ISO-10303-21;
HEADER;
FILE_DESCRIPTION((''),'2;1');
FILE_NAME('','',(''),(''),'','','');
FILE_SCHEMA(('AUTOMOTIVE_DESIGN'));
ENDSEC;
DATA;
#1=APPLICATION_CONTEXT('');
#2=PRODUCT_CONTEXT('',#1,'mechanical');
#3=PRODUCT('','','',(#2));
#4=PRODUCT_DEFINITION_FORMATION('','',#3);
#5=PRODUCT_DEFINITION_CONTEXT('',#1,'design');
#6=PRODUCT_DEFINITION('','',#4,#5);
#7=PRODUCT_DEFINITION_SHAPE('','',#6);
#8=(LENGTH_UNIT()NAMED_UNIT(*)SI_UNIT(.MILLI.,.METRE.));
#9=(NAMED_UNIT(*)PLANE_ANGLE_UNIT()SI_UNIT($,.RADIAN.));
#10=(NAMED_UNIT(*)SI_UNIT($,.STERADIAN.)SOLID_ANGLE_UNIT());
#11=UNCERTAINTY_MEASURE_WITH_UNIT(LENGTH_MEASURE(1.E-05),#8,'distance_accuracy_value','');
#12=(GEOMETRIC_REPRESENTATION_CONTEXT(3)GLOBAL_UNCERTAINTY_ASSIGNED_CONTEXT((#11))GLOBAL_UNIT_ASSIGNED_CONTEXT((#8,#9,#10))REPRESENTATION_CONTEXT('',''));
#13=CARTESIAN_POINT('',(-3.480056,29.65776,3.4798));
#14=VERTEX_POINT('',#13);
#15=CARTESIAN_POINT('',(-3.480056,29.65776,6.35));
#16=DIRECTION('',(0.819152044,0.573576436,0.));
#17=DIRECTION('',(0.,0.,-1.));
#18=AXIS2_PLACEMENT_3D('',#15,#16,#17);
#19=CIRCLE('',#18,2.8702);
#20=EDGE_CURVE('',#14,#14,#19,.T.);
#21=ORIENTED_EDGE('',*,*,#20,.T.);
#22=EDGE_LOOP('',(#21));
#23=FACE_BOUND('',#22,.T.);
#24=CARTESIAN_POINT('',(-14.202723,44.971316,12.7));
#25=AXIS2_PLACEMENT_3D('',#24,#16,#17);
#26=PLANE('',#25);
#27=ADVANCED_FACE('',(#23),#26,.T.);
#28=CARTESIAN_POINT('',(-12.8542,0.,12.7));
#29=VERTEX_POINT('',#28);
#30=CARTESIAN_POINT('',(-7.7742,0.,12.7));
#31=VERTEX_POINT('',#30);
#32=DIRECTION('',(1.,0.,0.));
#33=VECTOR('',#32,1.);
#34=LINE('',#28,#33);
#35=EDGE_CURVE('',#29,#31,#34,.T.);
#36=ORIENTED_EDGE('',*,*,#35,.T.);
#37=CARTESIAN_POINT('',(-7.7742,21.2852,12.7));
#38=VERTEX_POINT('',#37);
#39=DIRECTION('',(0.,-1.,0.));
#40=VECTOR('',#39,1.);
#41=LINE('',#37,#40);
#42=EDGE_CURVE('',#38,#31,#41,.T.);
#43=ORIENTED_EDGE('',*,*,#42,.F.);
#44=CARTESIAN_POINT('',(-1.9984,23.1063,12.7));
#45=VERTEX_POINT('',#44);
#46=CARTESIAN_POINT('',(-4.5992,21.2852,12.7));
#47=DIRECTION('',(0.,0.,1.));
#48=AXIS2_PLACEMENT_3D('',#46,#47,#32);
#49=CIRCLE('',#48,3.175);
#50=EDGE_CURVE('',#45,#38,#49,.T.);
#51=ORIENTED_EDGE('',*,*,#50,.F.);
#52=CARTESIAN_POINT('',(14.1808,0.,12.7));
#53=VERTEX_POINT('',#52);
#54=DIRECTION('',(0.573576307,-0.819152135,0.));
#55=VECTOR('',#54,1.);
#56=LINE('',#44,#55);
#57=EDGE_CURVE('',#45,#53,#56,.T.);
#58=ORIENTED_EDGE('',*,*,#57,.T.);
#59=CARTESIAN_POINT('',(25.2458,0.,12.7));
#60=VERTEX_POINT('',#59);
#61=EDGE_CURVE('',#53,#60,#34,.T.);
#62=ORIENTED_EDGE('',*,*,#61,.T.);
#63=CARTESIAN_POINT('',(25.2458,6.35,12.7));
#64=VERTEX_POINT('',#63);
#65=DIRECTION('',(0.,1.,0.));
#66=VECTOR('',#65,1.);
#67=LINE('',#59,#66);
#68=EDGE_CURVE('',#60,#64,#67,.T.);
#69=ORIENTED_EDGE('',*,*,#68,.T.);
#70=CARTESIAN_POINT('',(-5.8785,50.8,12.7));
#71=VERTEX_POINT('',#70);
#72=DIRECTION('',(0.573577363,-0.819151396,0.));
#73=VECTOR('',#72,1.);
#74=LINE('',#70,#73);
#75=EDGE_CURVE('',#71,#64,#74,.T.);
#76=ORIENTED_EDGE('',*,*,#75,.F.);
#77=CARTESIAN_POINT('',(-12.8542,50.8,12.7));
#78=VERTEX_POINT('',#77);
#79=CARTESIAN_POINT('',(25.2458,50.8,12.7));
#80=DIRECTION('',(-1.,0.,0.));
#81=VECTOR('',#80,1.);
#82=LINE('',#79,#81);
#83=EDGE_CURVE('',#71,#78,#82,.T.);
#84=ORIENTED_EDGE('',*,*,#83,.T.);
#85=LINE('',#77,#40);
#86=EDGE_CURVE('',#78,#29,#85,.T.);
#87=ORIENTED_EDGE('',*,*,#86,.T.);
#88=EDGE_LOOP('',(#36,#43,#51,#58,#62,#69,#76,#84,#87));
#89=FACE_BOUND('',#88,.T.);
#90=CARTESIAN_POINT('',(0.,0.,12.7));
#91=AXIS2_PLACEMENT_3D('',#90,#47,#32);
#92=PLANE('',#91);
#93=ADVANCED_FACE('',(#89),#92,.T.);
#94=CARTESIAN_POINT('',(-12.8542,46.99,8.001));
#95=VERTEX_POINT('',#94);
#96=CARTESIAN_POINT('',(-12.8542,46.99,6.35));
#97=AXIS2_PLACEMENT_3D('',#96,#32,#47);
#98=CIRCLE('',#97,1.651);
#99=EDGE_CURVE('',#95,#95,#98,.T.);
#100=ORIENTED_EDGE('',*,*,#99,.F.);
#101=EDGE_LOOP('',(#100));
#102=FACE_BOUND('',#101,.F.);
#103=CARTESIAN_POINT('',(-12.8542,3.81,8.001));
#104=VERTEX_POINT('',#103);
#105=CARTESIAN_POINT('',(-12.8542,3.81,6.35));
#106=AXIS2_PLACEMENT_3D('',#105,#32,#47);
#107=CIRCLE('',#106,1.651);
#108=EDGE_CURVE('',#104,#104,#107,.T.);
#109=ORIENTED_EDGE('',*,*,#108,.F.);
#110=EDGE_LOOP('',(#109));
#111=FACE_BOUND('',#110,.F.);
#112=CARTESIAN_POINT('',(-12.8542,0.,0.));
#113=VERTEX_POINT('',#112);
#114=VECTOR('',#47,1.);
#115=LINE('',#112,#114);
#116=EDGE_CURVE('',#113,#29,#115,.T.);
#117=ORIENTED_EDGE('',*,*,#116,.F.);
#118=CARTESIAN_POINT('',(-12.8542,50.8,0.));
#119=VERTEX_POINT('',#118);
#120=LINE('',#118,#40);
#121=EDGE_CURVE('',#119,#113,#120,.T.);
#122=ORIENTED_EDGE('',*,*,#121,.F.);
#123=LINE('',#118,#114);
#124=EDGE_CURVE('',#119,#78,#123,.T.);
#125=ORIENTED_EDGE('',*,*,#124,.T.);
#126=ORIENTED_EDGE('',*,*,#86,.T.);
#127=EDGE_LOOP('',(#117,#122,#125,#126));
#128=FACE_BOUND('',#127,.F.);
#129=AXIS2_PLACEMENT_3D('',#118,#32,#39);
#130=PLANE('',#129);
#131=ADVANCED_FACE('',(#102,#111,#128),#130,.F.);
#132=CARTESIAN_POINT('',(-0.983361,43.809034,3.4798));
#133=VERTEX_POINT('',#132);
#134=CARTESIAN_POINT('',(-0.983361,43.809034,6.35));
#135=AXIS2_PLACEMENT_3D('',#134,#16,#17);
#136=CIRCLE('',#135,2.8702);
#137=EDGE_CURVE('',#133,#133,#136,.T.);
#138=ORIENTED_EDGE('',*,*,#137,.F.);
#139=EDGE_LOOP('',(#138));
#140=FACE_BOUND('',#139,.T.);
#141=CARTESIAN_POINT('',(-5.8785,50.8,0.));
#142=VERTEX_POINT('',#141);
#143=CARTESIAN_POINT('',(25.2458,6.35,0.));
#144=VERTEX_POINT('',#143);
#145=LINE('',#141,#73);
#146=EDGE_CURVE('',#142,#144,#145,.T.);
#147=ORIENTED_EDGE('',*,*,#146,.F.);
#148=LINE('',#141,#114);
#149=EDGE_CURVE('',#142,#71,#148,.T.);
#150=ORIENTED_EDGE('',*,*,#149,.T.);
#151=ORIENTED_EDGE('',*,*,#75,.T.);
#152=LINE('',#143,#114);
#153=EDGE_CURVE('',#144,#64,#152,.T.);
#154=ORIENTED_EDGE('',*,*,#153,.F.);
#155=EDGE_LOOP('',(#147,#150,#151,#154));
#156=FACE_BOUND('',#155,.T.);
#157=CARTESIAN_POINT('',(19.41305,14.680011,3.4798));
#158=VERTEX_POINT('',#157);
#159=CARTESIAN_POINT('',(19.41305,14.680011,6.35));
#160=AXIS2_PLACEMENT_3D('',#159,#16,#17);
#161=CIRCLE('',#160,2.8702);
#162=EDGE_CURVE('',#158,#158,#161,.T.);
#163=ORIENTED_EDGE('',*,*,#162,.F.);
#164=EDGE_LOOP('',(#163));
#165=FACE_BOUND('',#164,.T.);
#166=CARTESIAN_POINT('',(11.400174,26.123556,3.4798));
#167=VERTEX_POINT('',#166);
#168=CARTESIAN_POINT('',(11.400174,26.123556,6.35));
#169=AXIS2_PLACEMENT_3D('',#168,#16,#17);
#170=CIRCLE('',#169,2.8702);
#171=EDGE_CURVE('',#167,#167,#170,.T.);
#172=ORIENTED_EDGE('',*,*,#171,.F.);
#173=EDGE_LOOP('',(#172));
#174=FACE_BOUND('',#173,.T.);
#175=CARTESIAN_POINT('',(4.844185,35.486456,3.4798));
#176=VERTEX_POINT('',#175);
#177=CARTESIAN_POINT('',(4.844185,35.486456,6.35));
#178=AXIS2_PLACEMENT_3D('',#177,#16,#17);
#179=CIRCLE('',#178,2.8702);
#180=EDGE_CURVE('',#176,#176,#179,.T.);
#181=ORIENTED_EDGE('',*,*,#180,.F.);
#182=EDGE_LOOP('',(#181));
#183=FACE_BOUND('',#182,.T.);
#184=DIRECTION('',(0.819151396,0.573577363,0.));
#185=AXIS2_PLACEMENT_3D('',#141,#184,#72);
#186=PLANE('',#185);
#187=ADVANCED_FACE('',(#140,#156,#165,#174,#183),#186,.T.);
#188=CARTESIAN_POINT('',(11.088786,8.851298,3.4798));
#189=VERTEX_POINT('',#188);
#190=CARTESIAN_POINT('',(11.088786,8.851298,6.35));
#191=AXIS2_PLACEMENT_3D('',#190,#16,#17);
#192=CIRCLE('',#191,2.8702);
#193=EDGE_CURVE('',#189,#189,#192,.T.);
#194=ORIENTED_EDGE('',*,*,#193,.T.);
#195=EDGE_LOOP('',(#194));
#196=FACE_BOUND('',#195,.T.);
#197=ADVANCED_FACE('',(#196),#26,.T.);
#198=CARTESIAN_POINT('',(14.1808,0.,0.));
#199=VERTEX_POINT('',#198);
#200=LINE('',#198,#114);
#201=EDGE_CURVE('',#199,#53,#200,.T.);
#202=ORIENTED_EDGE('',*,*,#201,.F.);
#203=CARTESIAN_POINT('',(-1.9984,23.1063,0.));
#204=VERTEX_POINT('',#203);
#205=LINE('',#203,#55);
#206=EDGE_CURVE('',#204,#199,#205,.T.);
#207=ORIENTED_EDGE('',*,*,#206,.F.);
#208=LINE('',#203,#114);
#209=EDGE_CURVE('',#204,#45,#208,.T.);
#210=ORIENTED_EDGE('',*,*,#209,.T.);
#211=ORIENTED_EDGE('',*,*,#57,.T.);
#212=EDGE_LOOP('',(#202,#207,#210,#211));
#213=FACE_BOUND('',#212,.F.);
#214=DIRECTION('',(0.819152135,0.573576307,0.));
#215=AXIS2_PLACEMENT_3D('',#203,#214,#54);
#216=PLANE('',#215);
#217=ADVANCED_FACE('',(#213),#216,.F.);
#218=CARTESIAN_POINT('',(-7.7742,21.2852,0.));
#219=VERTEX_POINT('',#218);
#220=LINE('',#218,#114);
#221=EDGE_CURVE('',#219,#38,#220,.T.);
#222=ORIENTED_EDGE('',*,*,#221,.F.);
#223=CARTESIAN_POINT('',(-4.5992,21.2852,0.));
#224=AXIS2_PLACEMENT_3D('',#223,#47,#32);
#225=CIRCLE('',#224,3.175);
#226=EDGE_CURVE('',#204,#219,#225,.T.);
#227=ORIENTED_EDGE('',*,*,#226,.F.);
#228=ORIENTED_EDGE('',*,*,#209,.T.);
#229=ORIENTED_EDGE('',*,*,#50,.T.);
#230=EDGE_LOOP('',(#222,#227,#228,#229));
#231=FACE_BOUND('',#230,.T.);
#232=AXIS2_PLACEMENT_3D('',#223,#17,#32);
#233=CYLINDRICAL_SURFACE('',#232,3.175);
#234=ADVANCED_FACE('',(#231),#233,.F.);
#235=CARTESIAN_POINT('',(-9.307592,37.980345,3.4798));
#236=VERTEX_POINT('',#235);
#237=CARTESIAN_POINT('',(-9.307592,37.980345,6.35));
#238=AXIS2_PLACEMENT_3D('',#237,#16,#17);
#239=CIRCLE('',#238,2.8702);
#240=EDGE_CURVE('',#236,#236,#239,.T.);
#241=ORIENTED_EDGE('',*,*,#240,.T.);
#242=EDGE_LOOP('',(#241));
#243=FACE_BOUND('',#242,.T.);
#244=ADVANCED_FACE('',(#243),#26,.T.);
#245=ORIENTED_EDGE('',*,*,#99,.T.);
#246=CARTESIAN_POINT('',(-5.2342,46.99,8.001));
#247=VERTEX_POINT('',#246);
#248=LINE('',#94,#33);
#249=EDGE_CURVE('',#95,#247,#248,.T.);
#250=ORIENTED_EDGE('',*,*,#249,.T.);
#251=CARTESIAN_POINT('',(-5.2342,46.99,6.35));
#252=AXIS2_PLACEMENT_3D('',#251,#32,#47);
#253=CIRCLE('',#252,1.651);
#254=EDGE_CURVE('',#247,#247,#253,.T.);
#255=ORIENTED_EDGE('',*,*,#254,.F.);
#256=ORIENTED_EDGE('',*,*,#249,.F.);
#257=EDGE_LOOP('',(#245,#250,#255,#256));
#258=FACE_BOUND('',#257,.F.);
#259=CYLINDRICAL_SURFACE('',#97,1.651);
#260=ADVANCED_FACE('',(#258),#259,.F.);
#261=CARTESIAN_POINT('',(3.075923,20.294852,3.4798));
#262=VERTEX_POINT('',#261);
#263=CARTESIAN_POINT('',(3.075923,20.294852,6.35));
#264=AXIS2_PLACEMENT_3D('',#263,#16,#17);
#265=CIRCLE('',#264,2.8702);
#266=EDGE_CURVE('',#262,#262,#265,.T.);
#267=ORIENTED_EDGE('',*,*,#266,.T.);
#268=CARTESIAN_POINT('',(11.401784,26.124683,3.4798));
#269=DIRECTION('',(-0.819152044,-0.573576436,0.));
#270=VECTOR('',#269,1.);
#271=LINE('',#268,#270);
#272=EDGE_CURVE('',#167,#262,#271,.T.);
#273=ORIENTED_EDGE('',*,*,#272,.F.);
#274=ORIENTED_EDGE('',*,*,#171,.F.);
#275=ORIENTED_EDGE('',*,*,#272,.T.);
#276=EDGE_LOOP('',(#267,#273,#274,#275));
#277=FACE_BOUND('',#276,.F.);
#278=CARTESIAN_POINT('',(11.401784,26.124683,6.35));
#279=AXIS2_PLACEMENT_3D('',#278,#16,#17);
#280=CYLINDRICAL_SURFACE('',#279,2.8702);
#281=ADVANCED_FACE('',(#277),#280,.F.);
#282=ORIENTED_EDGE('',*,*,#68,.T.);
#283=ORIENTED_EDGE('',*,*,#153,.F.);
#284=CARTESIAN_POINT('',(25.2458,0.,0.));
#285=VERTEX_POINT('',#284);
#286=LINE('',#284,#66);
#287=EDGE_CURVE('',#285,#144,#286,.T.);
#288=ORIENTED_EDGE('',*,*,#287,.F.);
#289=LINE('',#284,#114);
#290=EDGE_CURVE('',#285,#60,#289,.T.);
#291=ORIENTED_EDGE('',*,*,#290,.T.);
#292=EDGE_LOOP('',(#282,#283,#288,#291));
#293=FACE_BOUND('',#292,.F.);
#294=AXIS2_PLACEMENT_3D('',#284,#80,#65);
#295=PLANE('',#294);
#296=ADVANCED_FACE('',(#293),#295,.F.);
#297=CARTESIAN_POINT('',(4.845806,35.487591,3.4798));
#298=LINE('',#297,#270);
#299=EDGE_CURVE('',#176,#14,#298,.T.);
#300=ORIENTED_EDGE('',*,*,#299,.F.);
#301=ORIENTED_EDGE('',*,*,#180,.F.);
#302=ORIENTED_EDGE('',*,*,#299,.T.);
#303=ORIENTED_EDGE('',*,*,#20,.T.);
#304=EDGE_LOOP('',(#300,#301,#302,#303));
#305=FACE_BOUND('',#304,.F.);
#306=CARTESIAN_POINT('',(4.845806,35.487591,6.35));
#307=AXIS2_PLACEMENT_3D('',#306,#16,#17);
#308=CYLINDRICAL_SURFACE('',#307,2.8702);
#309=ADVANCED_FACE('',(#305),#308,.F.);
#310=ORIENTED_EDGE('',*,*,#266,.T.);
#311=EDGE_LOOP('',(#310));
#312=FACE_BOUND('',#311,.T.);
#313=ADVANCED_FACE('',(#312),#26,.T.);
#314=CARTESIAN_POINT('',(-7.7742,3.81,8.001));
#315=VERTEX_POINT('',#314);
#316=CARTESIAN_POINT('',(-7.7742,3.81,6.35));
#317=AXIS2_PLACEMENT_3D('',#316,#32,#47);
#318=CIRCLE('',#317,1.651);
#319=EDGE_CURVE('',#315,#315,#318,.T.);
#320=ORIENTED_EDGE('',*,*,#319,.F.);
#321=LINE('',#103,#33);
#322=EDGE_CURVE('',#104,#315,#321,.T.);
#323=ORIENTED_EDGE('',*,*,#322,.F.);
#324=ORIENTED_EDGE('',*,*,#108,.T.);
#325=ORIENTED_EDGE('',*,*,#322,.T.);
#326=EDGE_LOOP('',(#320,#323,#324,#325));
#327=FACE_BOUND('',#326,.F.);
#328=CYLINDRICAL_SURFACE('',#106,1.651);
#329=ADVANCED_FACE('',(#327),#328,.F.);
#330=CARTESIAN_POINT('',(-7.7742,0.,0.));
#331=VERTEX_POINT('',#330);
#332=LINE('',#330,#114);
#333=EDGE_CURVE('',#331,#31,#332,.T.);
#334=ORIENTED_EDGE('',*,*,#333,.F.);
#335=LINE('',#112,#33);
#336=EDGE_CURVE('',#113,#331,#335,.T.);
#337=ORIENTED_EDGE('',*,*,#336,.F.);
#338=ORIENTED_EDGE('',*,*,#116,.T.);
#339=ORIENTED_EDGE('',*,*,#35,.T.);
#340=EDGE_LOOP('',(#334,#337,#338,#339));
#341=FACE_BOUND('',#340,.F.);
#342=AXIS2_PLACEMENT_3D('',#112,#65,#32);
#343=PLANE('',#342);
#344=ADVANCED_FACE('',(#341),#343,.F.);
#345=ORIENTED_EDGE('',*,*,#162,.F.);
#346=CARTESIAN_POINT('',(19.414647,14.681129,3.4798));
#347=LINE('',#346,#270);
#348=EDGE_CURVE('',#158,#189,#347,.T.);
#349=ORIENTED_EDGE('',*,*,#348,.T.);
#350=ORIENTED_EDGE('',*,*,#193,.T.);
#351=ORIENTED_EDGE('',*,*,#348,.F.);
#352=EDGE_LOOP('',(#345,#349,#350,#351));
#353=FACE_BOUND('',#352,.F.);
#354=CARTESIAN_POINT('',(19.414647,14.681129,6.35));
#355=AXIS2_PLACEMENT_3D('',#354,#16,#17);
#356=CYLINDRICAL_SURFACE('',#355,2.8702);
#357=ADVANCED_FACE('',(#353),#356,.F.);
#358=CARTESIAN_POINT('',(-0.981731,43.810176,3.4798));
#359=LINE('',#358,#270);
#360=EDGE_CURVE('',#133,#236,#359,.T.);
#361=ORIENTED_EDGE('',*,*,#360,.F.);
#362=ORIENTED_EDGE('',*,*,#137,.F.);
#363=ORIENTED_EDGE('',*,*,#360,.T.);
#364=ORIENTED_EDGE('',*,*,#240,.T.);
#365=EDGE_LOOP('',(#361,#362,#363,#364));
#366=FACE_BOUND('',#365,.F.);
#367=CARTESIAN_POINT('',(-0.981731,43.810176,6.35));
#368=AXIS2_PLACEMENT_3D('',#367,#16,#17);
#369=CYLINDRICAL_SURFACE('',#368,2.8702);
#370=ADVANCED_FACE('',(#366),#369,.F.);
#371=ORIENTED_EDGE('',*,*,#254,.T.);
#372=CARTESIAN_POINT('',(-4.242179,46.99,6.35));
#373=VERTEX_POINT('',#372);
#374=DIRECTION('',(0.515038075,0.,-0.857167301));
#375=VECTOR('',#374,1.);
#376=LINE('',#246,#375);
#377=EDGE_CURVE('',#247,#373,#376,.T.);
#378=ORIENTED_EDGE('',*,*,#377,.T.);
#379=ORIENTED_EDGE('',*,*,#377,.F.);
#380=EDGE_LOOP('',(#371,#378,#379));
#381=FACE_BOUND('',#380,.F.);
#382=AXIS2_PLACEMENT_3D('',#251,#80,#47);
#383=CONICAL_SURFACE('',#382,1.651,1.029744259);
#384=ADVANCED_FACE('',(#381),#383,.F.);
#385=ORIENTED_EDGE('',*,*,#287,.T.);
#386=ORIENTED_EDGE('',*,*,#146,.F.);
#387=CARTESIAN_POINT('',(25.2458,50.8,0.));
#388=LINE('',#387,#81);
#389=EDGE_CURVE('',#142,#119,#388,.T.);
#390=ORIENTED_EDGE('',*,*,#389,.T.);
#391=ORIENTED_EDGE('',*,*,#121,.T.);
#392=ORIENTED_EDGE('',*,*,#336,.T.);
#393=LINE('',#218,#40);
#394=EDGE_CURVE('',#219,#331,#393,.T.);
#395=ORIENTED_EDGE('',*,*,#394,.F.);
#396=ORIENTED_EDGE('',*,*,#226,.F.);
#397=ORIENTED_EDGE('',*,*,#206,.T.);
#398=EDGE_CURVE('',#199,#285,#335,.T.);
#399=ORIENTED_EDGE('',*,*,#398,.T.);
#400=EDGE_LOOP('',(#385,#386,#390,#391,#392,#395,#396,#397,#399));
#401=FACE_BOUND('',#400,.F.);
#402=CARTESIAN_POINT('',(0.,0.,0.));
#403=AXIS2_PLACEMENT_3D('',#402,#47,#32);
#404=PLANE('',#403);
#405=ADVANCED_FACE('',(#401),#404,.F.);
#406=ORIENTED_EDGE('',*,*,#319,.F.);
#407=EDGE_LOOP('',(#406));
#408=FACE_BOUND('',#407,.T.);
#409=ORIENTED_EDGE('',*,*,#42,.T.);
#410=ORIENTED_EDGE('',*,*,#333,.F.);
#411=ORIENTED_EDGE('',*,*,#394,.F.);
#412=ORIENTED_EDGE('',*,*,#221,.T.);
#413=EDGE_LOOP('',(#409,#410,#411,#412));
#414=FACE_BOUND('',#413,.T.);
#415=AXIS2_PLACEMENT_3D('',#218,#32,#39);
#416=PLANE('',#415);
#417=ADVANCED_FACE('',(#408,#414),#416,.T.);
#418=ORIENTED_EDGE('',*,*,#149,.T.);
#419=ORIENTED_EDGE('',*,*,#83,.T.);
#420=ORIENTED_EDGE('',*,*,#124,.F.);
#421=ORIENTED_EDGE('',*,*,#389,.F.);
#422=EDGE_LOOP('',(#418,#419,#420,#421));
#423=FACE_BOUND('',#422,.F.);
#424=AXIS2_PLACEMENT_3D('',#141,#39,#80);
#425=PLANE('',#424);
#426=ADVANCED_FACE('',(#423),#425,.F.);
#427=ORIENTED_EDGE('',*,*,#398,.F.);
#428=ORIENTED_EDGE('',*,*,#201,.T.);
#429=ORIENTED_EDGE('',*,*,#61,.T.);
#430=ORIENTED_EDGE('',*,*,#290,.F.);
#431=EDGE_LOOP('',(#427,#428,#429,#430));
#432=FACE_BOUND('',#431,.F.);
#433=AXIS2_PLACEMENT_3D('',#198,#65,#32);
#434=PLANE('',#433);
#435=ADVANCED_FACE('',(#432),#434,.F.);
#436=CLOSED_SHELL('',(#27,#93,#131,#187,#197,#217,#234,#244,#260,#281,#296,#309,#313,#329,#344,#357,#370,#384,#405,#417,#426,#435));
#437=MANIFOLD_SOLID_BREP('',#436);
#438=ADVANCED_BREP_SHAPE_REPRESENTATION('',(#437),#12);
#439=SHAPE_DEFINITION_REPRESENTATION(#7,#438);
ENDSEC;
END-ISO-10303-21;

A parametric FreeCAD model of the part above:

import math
import FreeCAD as App
import Part
import Sketcher

V = App.Vector
Q = App.Units.Quantity

doc = App.newDocument("Part")
body = doc.addObject("PartDesign::Body", "Body")

sketch1 = body.newObject("Sketcher::SketchObject", "Sketch")
sketch1.AttachmentSupport = (doc.getObject("XY_Plane"), [""])
sketch1.MapMode = "FlatFace"
sketch1.addGeometry(Part.LineSegment(V(-12.9, 50.8, 0), V(-12.9, 0, 0)), False)
sketch1.addGeometry(Part.LineSegment(V(-12.9, 0, 0), V(-7.8, 0, 0)), False)
sketch1.addGeometry(Part.LineSegment(V(-7.8, 0, 0), V(-7.8, 21.3, 0)), False)
sketch1.addGeometry(Part.ArcOfCircle(Part.Circle(V(-4.6, 21.3, 0), V(0, 0, 1), 3.2), math.radians(35), math.radians(180)), False)
sketch1.addGeometry(Part.LineSegment(V(-2, 23.1, 0), V(14.2, 0, 0)), False)
sketch1.addGeometry(Part.LineSegment(V(14.2, 0, 0), V(25.2, 0, 0)), False)
sketch1.addGeometry(Part.LineSegment(V(25.2, 0, 0), V(25.2, 6.3, 0)), False)
sketch1.addGeometry(Part.LineSegment(V(25.2, 6.3, 0), V(-5.9, 50.8, 0)), False)
sketch1.addGeometry(Part.LineSegment(V(-5.9, 50.8, 0), V(-12.9, 50.8, 0)), False)
sketch1.addConstraint(Sketcher.Constraint("Coincident", 0, 2, 1, 1))
sketch1.addConstraint(Sketcher.Constraint("Coincident", 1, 2, 2, 1))
sketch1.addConstraint(Sketcher.Constraint("Tangent", 2, 2, 3, 2))
sketch1.addConstraint(Sketcher.Constraint("Tangent", 3, 1, 4, 1))
sketch1.addConstraint(Sketcher.Constraint("Coincident", 4, 2, 5, 1))
sketch1.addConstraint(Sketcher.Constraint("Coincident", 5, 2, 6, 1))
sketch1.addConstraint(Sketcher.Constraint("Coincident", 6, 2, 7, 1))
sketch1.addConstraint(Sketcher.Constraint("Coincident", 7, 2, 8, 1))
sketch1.addConstraint(Sketcher.Constraint("Coincident", 8, 2, 0, 1))
sketch1.addConstraint(Sketcher.Constraint("Vertical", 0))
sketch1.addConstraint(Sketcher.Constraint("Horizontal", 1))
sketch1.addConstraint(Sketcher.Constraint("Vertical", 2))
sketch1.addConstraint(Sketcher.Constraint("Horizontal", 5))
sketch1.addConstraint(Sketcher.Constraint("Vertical", 6))
sketch1.addConstraint(Sketcher.Constraint("Horizontal", 8))
sketch1.addConstraint(Sketcher.Constraint("PointOnObject", 0, 2, -1))
sketch1.addConstraint(Sketcher.Constraint("PointOnObject", 4, 2, -1))
sketch1.addConstraint(Sketcher.Constraint("Parallel", 4, 7))
sketch1.addConstraint(Sketcher.Constraint("DistanceY", 0, 2, 0, 1, Q("2 in")))
sketch1.addConstraint(Sketcher.Constraint("Radius", 3, Q("0.125 in")))
sketch1.addConstraint(Sketcher.Constraint("DistanceY", 6, 1, 6, 2, Q("0.25 in")))
sketch1.addConstraint(Sketcher.Constraint("DistanceX", 0, 2, 5, 2, Q("1.5 in")))
sketch1.addConstraint(Sketcher.Constraint("DistanceY", 2, 1, 2, 2, Q("0.838 in")))
sketch1.addConstraint(Sketcher.Constraint("DistanceX", 1, 1, 1, 2, Q("0.2 in")))
sketch1.addConstraint(Sketcher.Constraint("Angle", 4, Q("-55 deg")))
sketch1.addConstraint(Sketcher.Constraint("DistanceX", -1, 1, 4, 2, Q("0.5583 in")))
pad1 = body.newObject("PartDesign::Pad", "Pad")
pad1.Profile = sketch1
pad1.Length = Q("0.5 in")

sketch2 = body.newObject("Sketcher::SketchObject", "Sketch001")
sketch2.Placement = App.Placement(V(-5.8785, 50.8, 12.7), App.Rotation(V(0, 0, -1), V(-0.573576436, 0.819152044, 0), V(0.819152044, 0.573576436, 0), "ZXY"))
sketch2.addGeometry(Part.Circle(V(6.3, -8.5, 0), V(0, 0, 1), 2.9), False)
sketch2.addGeometry(Part.Circle(V(6.3, -18.7, 0), V(0, 0, 1), 2.9), False)
sketch2.addGeometry(Part.Circle(V(6.3, -30.1, 0), V(0, 0, 1), 2.9), False)
sketch2.addGeometry(Part.Circle(V(6.3, -44.1, 0), V(0, 0, 1), 2.9), False)
sketch2.addConstraint(Sketcher.Constraint("Equal", 0, 1))
sketch2.addConstraint(Sketcher.Constraint("Equal", 1, 2))
sketch2.addConstraint(Sketcher.Constraint("Equal", 2, 3))
sketch2.addConstraint(Sketcher.Constraint("Vertical", 0, 3, 1, 3))
sketch2.addConstraint(Sketcher.Constraint("Vertical", 1, 3, 2, 3))
sketch2.addConstraint(Sketcher.Constraint("Vertical", 2, 3, 3, 3))
sketch2.addConstraint(Sketcher.Constraint("Diameter", 0, Q("0.226 in")))
sketch2.addConstraint(Sketcher.Constraint("DistanceX", -1, 1, 0, 3, Q("0.25 in")))
sketch2.addConstraint(Sketcher.Constraint("DistanceY", 0, 3, -1, 1, Q("0.336 in")))
sketch2.addConstraint(Sketcher.Constraint("DistanceY", 1, 3, -1, 1, Q("0.736 in")))
sketch2.addConstraint(Sketcher.Constraint("DistanceY", 2, 3, -1, 1, Q("1.186 in")))
sketch2.addConstraint(Sketcher.Constraint("DistanceY", 3, 3, -1, 1, Q("1.736 in")))
pocket1 = body.newObject("PartDesign::Pocket", "Pocket")
pocket1.Profile = sketch2
pocket1.Length = Q("0.4 in")

sketch3 = body.newObject("Sketcher::SketchObject", "Sketch002")
sketch3.AttachmentSupport = (doc.getObject("YZ_Plane"), [""])
sketch3.MapMode = "FlatFace"
sketch3.AttachmentOffset = App.Placement(V(0, 0, -12.8542), App.Rotation())
sketch3.addGeometry(Part.Circle(V(47, 6.3, 0), V(0, 0, 1), 1.7), False)
sketch3.addGeometry(Part.Circle(V(3.8, 6.3, 0), V(0, 0, 1), 1.7), False)
sketch3.addConstraint(Sketcher.Constraint("Equal", 0, 1))
sketch3.addConstraint(Sketcher.Constraint("Horizontal", 0, 3, 1, 3))
sketch3.addConstraint(Sketcher.Constraint("Diameter", 0, Q("0.13 in")))
sketch3.addConstraint(Sketcher.Constraint("DistanceX", 1, 3, 0, 3, Q("1.7 in")))
sketch3.addConstraint(Sketcher.Constraint("DistanceX", -1, 1, 0, 3, Q("1.85 in")))
sketch3.addConstraint(Sketcher.Constraint("DistanceY", -1, 1, 0, 3, Q("0.25 in")))
doc.recompute()
hole = body.newObject("PartDesign::Hole", "Hole")
hole.Profile = sketch3
hole.ThreadType = "None"
hole.Diameter = Q("0.13 in")
hole.DepthType = "Dimension"
hole.Depth = Q("0.3 in")
hole.DrillPoint = "Angled"
hole.DrillPointAngle = 118
hole.Reversed = True

doc.recompute()
